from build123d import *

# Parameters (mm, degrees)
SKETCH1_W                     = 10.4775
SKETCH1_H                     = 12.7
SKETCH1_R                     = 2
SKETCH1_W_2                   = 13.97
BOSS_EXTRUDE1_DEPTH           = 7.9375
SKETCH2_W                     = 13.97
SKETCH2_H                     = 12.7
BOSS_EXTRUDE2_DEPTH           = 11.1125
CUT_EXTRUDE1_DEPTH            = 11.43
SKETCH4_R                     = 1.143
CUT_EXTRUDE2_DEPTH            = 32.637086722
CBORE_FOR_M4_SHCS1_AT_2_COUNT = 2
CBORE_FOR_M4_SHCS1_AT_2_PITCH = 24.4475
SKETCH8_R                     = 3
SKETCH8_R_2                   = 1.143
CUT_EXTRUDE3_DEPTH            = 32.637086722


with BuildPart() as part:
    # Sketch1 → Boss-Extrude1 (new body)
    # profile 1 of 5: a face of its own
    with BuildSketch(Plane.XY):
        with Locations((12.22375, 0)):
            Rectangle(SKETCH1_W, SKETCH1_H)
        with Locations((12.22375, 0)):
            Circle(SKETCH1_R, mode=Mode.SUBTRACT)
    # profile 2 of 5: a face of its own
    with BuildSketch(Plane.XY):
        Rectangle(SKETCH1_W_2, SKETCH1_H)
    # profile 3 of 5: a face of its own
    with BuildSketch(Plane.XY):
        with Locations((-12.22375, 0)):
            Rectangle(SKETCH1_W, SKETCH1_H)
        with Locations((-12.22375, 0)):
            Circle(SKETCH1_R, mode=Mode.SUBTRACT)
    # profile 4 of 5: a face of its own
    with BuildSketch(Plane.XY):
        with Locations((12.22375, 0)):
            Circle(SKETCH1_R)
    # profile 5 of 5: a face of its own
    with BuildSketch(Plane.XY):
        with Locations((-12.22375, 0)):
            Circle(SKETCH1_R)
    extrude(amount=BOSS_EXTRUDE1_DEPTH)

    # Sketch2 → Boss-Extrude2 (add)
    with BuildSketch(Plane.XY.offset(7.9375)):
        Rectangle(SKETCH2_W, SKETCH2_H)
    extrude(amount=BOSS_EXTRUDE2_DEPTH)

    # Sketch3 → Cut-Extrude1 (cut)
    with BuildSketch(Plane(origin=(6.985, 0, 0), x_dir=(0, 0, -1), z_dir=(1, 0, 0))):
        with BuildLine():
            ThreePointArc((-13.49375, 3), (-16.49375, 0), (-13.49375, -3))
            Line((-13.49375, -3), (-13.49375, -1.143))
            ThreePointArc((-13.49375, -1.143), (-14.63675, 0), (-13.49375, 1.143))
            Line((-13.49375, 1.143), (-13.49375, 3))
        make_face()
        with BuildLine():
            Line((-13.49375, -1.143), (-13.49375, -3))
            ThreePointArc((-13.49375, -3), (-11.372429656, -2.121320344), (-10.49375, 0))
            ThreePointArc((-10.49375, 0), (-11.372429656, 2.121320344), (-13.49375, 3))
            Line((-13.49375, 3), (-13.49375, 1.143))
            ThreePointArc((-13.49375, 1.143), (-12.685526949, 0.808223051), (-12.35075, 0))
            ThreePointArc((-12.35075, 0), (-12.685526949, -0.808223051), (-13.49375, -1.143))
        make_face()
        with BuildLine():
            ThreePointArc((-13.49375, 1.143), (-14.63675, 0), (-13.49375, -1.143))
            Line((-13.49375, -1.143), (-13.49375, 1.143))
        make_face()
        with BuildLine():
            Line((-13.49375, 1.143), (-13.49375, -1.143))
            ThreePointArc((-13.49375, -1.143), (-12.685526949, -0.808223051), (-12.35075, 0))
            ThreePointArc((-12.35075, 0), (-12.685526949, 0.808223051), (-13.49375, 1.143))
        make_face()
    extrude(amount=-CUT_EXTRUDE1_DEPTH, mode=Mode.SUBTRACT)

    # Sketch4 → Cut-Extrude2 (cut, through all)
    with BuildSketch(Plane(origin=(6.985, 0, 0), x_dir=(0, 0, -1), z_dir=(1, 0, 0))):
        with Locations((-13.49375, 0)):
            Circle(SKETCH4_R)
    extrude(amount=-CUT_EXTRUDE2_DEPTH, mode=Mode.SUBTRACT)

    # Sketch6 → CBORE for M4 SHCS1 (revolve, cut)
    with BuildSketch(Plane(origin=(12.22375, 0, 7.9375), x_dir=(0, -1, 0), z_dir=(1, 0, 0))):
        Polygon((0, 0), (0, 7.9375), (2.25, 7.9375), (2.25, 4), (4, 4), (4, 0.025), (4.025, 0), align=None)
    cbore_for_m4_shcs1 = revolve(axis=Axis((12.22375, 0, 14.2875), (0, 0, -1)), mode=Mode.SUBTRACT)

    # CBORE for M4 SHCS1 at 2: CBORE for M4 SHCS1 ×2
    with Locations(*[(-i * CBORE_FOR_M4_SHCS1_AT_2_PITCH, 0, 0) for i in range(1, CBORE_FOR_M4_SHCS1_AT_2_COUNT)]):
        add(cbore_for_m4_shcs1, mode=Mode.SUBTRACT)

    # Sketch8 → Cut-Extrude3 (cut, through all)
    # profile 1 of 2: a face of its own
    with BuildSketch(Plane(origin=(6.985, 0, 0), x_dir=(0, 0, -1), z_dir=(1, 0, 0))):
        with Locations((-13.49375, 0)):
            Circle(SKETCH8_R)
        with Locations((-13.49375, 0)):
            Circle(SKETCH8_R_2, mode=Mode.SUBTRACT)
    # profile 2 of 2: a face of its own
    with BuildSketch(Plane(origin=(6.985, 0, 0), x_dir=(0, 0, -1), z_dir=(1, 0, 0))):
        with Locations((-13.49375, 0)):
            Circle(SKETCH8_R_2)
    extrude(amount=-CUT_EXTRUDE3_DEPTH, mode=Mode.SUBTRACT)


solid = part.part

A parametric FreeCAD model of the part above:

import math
import FreeCAD as App
import Part
import Sketcher
from FreeCAD import Vector
Q = App.Units.Quantity

doc = App.newDocument("Part")
body = doc.addObject("PartDesign::Body", "Body")

# Sketch on XY plane
sketch1 = body.newObject("Sketcher::SketchObject", "Sketch")
sketch1.AttachmentSupport = (doc.getObject("XY_Plane"), [""])
sketch1.MapMode = "FlatFace"
sketch1.addGeometry([
    Part.LineSegment(Vector(17, -6, 0), Vector(17, 6, 0)),
    Part.LineSegment(Vector(17, 6, 0), Vector(-17, 6, 0)),
    Part.LineSegment(Vector(-17, 6, 0), Vector(-17, -6, 0)),
    Part.LineSegment(Vector(-17, -6, 0), Vector(17, -6, 0)),
], False)
sketch1.addConstraint([
    Sketcher.Constraint("Coincident", 0, 2, 1, 1),
    Sketcher.Constraint("Coincident", 1, 2, 2, 1),
    Sketcher.Constraint("Coincident", 2, 2, 3, 1),
    Sketcher.Constraint("Coincident", 3, 2, 0, 1),
    Sketcher.Constraint("Vertical", 0),
    Sketcher.Constraint("Horizontal", 1),
    Sketcher.Constraint("Vertical", 2),
    Sketcher.Constraint("Horizontal", 3),
    Sketcher.Constraint("Symmetric", 0, 2, 2, 2, -1, 1),
    Sketcher.Constraint("DistanceY", 0, 1, 0, 2, Q("0.5 in")),
    Sketcher.Constraint("DistanceX", 1, 2, 1, 1, Q("1.375 in")),
])
pad1 = body.newObject("PartDesign::Pad", "Pad")
pad1.Profile = sketch1
pad1.Length = Q("0.3125 in")

# Sketch on XY plane
sketch2 = body.newObject("Sketcher::SketchObject", "Sketch001")
sketch2.AttachmentSupport = (doc.getObject("XY_Plane"), [""])
sketch2.MapMode = "FlatFace"
sketch2.AttachmentOffset = App.Placement(Vector(0, 0, 0.3125 * 25.4), App.Rotation())
sketch2.addGeometry([
    Part.LineSegment(Vector(-7, 6, 0), Vector(-7, -6, 0)),
    Part.LineSegment(Vector(-7, -6, 0), Vector(7, -6, 0)),
    Part.LineSegment(Vector(7, -6, 0), Vector(7, 6, 0)),
    Part.LineSegment(Vector(7, 6, 0), Vector(-7, 6, 0)),
], False)
sketch2.addConstraint([
    Sketcher.Constraint("Coincident", 0, 2, 1, 1),
    Sketcher.Constraint("Coincident", 1, 2, 2, 1),
    Sketcher.Constraint("Coincident", 2, 2, 3, 1),
    Sketcher.Constraint("Coincident", 3, 2, 0, 1),
    Sketcher.Constraint("Vertical", 0),
    Sketcher.Constraint("Horizontal", 1),
    Sketcher.Constraint("Vertical", 2),
    Sketcher.Constraint("Horizontal", 3),
    Sketcher.Constraint("Symmetric", 0, 2, 2, 2, -1, 1),
    Sketcher.Constraint("DistanceY", 0, 2, 0, 1, Q("0.5 in")),
    Sketcher.Constraint("DistanceX", 1, 1, 1, 2, Q("0.55 in")),
])
pad2 = body.newObject("PartDesign::Pad", "Pad001")
pad2.Profile = sketch2
pad2.Length = Q("0.4375 in")

# Sketch on YZ plane
sketch3 = body.newObject("Sketcher::SketchObject", "Sketch002")
sketch3.AttachmentSupport = (doc.getObject("YZ_Plane"), [""])
sketch3.MapMode = "FlatFace"
sketch3.AttachmentOffset = App.Placement(Vector(0, 0, 0.275 * 25.4), App.Rotation())
sketch3.addGeometry([
    Part.ArcOfCircle(Part.Circle(Vector(0, 13.5, 0), Vector(0, 0, 1), 3), math.radians(0), math.radians(180)),
    Part.ArcOfCircle(Part.Circle(Vector(0, 13.5, 0), Vector(0, 0, 1), 3), math.radians(180), math.radians(270)),
    Part.ArcOfCircle(Part.Circle(Vector(0, 13.5, 0), Vector(0, 0, 1), 3), math.radians(-90), math.radians(0)),
], False)
sketch3.addConstraint([
    Sketcher.Constraint("Tangent", 0, 2, 1, 1),
    Sketcher.Constraint("Tangent", 1, 2, 2, 1),
    Sketcher.Constraint("Tangent", 2, 2, 0, 1),
    Sketcher.Constraint("Symmetric", 0, 2, 2, 2, -2),
    Sketcher.Constraint("PointOnObject", 1, 2, -2),
    Sketcher.Constraint("Horizontal", 2, 3, 0, 2),
    Sketcher.Constraint("Radius", 0, 3.0),
    Sketcher.Constraint("DistanceY", -1, 1, 0, 3, Q("0.53125 in")),
])
pocket1 = body.newObject("PartDesign::Pocket", "Pocket")
pocket1.Profile = sketch3
pocket1.Length = Q("0.45 in")

# Sketch on YZ plane
sketch4 = body.newObject("Sketcher::SketchObject", "Sketch003")
sketch4.AttachmentSupport = (doc.getObject("YZ_Plane"), [""])
sketch4.MapMode = "FlatFace"
sketch4.AttachmentOffset = App.Placement(Vector(0, 0, 0.275 * 25.4), App.Rotation())
sketch4.addGeometry(Part.Circle(Vector(0, 13.5, 0), Vector(0, 0, 1), 1.1), False)
sketch4.addConstraint([
    Sketcher.Constraint("PointOnObject", 0, 3, -2),
    Sketcher.Constraint("Diameter", 0, Q("0.09 in")),
    Sketcher.Constraint("DistanceY", -1, 1, 0, 3, Q("0.53125 in")),
])
pocket2 = body.newObject("PartDesign::Pocket", "Pocket001")
pocket2.Profile = sketch4
pocket2.Type = "ThroughAll"

# Sketch on YZ plane
sketch5 = body.newObject("Sketcher::SketchObject", "Sketch004")
sketch5.AttachmentSupport = (doc.getObject("YZ_Plane"), [""])
sketch5.MapMode = "FlatFace"
sketch5.AttachmentOffset = App.Placement(Vector(0, 0, 12.22375), App.Rotation())
sketch5.addGeometry([
    Part.LineSegment(Vector(0, 0, 0), Vector(0, 7.938, 0)),  # 0
    Part.LineSegment(Vector(0, 7.938, 0), Vector(-4.025, 7.938, 0)),  # 1
    Part.LineSegment(Vector(-4.025, 7.938, 0), Vector(-4, 7.912, 0)),  # 2
    Part.LineSegment(Vector(-4, 7.912, 0), Vector(-4, 3.938, 0)),  # 3
    Part.LineSegment(Vector(-4, 3.938, 0), Vector(-2.25, 3.938, 0)),  # 4
    Part.LineSegment(Vector(-2.25, 3.938, 0), Vector(-2.25, 0, 0)),  # 5
    Part.LineSegment(Vector(-2.25, 0, 0), Vector(0, 0, 0)),  # 6
], False)
sketch5.addConstraint([
    Sketcher.Constraint("Coincident", 0, 2, 1, 1),
    Sketcher.Constraint("Coincident", 1, 2, 2, 1),
    Sketcher.Constraint("Coincident", 2, 2, 3, 1),
    Sketcher.Constraint("Coincident", 3, 2, 4, 1),
    Sketcher.Constraint("Coincident", 4, 2, 5, 1),
    Sketcher.Constraint("Coincident", 5, 2, 6, 1),
    Sketcher.Constraint("Coincident", 6, 2, 0, 1),
    Sketcher.Constraint("Vertical", 0),
    Sketcher.Constraint("Horizontal", 1),
    Sketcher.Constraint("Vertical", 3),
    Sketcher.Constraint("Horizontal", 4),
    Sketcher.Constraint("Vertical", 5),
    Sketcher.Constraint("Horizontal", 6),
    Sketcher.Constraint("Coincident", 6, 2, -1, 1),
    Sketcher.Constraint("Angle", 2, Q("-45 deg")),
    Sketcher.Constraint("DistanceY", 0, 1, 0, 2, Q("0.3125 in")),
    Sketcher.Constraint("DistanceX", 1, 2, 1, 1, 4.025),
    Sketcher.Constraint("DistanceX", 4, 1, 4, 2, 1.75),
    Sketcher.Constraint("DistanceX", 6, 1, 6, 2, 2.25),
    Sketcher.Constraint("DistanceY", 3, 2, 3, 1, 3.975),
])
groove = body.newObject("PartDesign::Groove", "Groove")
groove.Profile = sketch5
groove.ReferenceAxis = (sketch5, ["V_Axis"])
groove.Angle = 360
doc.recompute()

linearpattern = body.newObject("PartDesign::LinearPattern", "LinearPattern")
linearpattern.Originals = [groove]
linearpattern.Direction = (doc.getObject("X_Axis"), [""])
linearpattern.Mode = "offset"
linearpattern.Offset = Q("0.9625 in")
linearpattern.Occurrences = 2
linearpattern.Reversed = True
body.Tip = linearpattern

# Sketch on YZ plane
sketch6 = body.newObject("Sketcher::SketchObject", "Sketch005")
sketch6.AttachmentSupport = (doc.getObject("YZ_Plane"), [""])
sketch6.MapMode = "FlatFace"
sketch6.AttachmentOffset = App.Placement(Vector(0, 0, 0.275 * 25.4), App.Rotation())
sketch6.addGeometry(Part.Circle(Vector(0, 13.5, 0), Vector(0, 0, 1), 3), False)
sketch6.addConstraint([
    Sketcher.Constraint("PointOnObject", 0, 3, -2),
    Sketcher.Constraint("Diameter", 0, 6.0),
    Sketcher.Constraint("DistanceY", -1, 1, 0, 3, Q("0.53125 in")),
])
pocket3 = body.newObject("PartDesign::Pocket", "Pocket002")
pocket3.Profile = sketch6
pocket3.Length = 32.637087

doc.recompute()
